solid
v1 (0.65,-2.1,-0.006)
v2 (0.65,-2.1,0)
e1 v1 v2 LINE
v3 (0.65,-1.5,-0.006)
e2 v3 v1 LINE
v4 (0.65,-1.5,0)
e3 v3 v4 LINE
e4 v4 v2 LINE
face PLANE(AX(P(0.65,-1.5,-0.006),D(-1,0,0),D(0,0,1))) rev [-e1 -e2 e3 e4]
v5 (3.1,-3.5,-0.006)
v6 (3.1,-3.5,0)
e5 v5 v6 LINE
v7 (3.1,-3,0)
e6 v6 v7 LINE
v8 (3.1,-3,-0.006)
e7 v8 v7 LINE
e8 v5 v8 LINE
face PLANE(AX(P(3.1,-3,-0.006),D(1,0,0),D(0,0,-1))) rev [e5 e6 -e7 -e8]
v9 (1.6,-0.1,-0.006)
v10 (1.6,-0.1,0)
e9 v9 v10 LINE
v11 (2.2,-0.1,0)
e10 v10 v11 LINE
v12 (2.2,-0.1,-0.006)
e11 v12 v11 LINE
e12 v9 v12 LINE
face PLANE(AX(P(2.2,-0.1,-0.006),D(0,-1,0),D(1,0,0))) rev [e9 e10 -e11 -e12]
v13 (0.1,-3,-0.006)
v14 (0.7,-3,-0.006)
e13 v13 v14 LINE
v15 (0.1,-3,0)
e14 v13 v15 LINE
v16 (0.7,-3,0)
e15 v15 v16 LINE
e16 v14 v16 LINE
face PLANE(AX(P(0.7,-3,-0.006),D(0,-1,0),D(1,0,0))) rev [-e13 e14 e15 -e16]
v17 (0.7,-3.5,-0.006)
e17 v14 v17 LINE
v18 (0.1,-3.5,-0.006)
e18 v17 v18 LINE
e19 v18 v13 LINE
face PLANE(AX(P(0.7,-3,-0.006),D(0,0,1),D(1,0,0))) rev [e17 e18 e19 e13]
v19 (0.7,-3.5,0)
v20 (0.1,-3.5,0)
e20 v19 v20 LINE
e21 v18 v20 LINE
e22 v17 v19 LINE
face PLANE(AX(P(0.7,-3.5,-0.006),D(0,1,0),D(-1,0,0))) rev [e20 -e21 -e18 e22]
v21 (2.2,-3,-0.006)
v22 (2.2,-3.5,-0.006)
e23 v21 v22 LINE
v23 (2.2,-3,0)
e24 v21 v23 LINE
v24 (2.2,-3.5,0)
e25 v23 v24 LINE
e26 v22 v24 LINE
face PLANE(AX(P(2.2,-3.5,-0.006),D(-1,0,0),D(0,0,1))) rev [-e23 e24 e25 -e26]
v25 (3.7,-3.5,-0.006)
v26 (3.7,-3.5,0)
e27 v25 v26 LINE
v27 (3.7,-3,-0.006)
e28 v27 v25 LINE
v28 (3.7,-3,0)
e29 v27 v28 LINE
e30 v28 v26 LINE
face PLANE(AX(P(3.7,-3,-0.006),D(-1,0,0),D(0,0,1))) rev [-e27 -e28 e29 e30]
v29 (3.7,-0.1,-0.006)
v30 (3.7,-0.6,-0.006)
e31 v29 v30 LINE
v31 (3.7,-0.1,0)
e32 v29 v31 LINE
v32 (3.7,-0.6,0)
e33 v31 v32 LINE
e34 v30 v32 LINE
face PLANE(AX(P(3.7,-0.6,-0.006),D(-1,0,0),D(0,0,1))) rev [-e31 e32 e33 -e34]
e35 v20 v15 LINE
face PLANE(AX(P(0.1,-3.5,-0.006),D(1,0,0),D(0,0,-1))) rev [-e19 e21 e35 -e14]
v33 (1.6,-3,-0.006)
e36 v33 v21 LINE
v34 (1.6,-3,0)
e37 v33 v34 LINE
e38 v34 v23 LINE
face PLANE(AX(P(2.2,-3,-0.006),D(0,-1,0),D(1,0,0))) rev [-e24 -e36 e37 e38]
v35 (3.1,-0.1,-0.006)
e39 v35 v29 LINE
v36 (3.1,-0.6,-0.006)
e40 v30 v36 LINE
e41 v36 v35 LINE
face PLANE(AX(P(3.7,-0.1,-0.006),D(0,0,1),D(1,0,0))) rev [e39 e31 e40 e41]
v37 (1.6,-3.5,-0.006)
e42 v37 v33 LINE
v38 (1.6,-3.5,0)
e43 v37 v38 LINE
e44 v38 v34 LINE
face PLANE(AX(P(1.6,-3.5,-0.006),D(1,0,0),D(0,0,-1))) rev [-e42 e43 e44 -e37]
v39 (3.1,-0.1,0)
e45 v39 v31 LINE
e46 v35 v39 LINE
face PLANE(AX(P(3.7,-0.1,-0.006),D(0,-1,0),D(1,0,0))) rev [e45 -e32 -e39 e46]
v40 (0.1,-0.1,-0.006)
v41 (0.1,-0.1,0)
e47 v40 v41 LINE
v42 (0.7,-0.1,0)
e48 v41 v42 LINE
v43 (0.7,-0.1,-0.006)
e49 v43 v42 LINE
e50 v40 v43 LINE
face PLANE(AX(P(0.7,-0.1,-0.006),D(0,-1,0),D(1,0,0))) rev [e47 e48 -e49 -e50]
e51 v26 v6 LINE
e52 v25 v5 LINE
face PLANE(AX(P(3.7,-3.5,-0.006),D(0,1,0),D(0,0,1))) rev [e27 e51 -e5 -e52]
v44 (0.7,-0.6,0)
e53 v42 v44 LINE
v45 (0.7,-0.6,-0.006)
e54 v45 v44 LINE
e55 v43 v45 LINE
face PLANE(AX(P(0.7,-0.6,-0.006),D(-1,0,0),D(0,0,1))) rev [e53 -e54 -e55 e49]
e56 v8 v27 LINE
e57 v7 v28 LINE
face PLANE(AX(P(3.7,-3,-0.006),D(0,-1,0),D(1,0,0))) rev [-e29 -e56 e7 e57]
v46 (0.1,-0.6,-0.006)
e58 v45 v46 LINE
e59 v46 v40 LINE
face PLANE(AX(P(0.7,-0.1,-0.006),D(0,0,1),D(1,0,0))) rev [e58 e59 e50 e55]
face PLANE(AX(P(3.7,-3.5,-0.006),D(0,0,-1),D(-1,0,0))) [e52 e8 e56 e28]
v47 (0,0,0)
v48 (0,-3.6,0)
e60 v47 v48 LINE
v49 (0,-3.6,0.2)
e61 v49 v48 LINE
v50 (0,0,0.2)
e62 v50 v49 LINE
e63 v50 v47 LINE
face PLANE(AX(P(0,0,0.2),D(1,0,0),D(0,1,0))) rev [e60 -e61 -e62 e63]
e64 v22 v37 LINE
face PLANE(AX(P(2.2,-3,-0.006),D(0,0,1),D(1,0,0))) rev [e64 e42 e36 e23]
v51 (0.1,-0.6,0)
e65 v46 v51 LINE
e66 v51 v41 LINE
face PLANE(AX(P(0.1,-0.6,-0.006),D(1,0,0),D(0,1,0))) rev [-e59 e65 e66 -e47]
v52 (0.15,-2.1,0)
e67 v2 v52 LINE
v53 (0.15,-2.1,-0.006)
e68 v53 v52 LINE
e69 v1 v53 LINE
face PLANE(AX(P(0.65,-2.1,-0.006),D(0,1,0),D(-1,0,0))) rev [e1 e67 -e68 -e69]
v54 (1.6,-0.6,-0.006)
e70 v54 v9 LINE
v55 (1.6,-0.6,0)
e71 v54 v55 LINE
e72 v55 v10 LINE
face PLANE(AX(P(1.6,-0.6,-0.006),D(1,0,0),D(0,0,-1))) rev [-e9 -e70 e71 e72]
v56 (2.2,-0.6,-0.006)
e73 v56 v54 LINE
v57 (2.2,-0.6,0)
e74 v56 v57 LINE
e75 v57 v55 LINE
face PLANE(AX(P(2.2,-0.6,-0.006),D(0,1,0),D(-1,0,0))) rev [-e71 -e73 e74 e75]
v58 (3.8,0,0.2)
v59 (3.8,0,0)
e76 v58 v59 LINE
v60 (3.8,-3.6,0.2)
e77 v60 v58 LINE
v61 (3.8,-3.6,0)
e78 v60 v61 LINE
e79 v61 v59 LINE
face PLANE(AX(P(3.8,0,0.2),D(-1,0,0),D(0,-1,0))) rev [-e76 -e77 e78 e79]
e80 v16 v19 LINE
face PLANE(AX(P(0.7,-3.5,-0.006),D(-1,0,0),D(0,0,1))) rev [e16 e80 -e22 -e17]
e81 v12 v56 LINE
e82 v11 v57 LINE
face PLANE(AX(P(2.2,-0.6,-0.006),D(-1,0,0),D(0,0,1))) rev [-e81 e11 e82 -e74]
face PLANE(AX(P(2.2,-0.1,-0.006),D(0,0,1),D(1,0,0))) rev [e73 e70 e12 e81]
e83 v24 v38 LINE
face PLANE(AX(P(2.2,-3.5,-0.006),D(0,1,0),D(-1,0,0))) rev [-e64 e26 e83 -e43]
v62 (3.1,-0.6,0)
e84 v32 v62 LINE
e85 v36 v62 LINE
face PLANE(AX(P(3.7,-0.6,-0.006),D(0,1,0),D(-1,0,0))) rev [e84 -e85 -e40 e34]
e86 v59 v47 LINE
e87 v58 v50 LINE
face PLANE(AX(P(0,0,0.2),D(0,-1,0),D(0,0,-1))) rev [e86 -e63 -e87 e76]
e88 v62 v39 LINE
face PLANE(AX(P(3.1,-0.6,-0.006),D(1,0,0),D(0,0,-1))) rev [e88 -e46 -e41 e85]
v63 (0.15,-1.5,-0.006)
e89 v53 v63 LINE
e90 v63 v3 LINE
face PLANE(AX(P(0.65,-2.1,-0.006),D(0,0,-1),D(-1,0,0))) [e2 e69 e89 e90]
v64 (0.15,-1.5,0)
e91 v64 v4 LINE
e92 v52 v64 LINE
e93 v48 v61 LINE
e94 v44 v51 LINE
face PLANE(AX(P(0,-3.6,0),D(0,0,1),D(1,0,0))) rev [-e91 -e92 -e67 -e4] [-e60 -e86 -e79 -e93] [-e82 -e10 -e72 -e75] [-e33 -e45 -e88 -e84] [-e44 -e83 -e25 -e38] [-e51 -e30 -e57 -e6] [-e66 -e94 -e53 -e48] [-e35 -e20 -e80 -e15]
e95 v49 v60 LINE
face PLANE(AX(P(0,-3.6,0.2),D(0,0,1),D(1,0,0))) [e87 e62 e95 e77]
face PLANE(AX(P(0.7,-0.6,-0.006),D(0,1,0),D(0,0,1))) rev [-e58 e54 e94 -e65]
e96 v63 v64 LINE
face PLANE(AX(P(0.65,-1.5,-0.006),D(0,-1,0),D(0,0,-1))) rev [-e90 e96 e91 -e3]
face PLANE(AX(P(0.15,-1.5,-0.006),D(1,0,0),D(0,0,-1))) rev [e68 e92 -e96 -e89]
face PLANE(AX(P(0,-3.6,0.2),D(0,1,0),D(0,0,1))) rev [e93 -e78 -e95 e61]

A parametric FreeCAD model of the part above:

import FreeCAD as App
import Part
import Sketcher

V = App.Vector

doc = App.newDocument("Part")
body = doc.addObject("PartDesign::Body", "Body")

# Sketch on XY plane
sketch1 = body.newObject("Sketcher::SketchObject", "Sketch")
sketch1.AttachmentSupport = (doc.getObject("XY_Plane"), [""])
sketch1.MapMode = "FlatFace"
sketch1.addGeometry(Part.LineSegment(V(0, 0, 0), V(0, -3.6, 0)), False)
sketch1.addGeometry(Part.LineSegment(V(0, -3.6, 0), V(3.8, -3.6, 0)), False)
sketch1.addGeometry(Part.LineSegment(V(3.8, -3.6, 0), V(3.8, 0, 0)), False)
sketch1.addGeometry(Part.LineSegment(V(3.8, 0, 0), V(0, 0, 0)), False)
sketch1.addConstraint(Sketcher.Constraint("Coincident", 0, 2, 1, 1))
sketch1.addConstraint(Sketcher.Constraint("Coincident", 1, 2, 2, 1))
sketch1.addConstraint(Sketcher.Constraint("Coincident", 2, 2, 3, 1))
sketch1.addConstraint(Sketcher.Constraint("Coincident", 3, 2, 0, 1))
sketch1.addConstraint(Sketcher.Constraint("Vertical", 0))
sketch1.addConstraint(Sketcher.Constraint("Horizontal", 1))
sketch1.addConstraint(Sketcher.Constraint("Vertical", 2))
sketch1.addConstraint(Sketcher.Constraint("Horizontal", 3))
sketch1.addConstraint(Sketcher.Constraint("Coincident", 3, 2, -1, 1))
sketch1.addConstraint(Sketcher.Constraint("DistanceX", 1, 1, 1, 2, 3.8))
sketch1.addConstraint(Sketcher.Constraint("DistanceY", 0, 2, 0, 1, 3.6))
pad1 = body.newObject("PartDesign::Pad", "Pad")
pad1.Profile = sketch1
pad1.Length = 0.2

# Sketch on XY plane
sketch2 = body.newObject("Sketcher::SketchObject", "Sketch001")
sketch2.AttachmentSupport = (doc.getObject("XY_Plane"), [""])
sketch2.MapMode = "FlatFace"
sketch2.addGeometry(Part.LineSegment(V(0.7, -1.5, 0), V(0.7, -2.1, 0)), False)
sketch2.addGeometry(Part.LineSegment(V(0.7, -2.1, 0), V(0.1, -2.1, 0)), False)
sketch2.addGeometry(Part.LineSegment(V(0.1, -2.1, 0), V(0.1, -1.5, 0)), False)
sketch2.addGeometry(Part.LineSegment(V(0.1, -1.5, 0), V(0.7, -1.5, 0)), False)
sketch2.addGeometry(Part.LineSegment(V(2.2, -3, 0), V(2.2, -3.5, 0)), False)
sketch2.addGeometry(Part.LineSegment(V(2.2, -3.5, 0), V(1.6, -3.5, 0)), False)
sketch2.addGeometry(Part.LineSegment(V(1.6, -3.5, 0), V(1.6, -3, 0)), False)
sketch2.addGeometry(Part.LineSegment(V(1.6, -3, 0), V(2.2, -3, 0)), False)
sketch2.addGeometry(Part.LineSegment(V(3.7, -3, 0), V(3.7, -3.5, 0)), False)
sketch2.addGeometry(Part.LineSegment(V(3.7, -3.5, 0), V(3.1, -3.5, 0)), False)
sketch2.addGeometry(Part.LineSegment(V(3.1, -3.5, 0), V(3.1, -3, 0)), False)
sketch2.addGeometry(Part.LineSegment(V(3.1, -3, 0), V(3.7, -3, 0)), False)
sketch2.addGeometry(Part.LineSegment(V(3.7, -0.1, 0), V(3.7, -0.6, 0)), False)
sketch2.addGeometry(Part.LineSegment(V(3.7, -0.6, 0), V(3.1, -0.6, 0)), False)
sketch2.addGeometry(Part.LineSegment(V(3.1, -0.6, 0), V(3.1, -0.1, 0)), False)
sketch2.addGeometry(Part.LineSegment(V(3.1, -0.1, 0), V(3.7, -0.1, 0)), False)
sketch2.addGeometry(Part.LineSegment(V(2.2, -0.1, 0), V(2.2, -0.6, 0)), False)
sketch2.addGeometry(Part.LineSegment(V(2.2, -0.6, 0), V(1.6, -0.6, 0)), False)
sketch2.addGeometry(Part.LineSegment(V(1.6, -0.6, 0), V(1.6, -0.1, 0)), False)
sketch2.addGeometry(Part.LineSegment(V(1.6, -0.1, 0), V(2.2, -0.1, 0)), False)
sketch2.addGeometry(Part.LineSegment(V(0.7, -3, 0), V(0.7, -3.5, 0)), False)
sketch2.addGeometry(Part.LineSegment(V(0.7, -3.5, 0), V(0.1, -3.5, 0)), False)
sketch2.addGeometry(Part.LineSegment(V(0.1, -3.5, 0), V(0.1, -3, 0)), False)
sketch2.addGeometry(Part.LineSegment(V(0.1, -3, 0), V(0.7, -3, 0)), False)
sketch2.addGeometry(Part.LineSegment(V(0.7, -0.1, 0), V(0.7, -0.6, 0)), False)
sketch2.addGeometry(Part.LineSegment(V(0.7, -0.6, 0), V(0.1, -0.6, 0)), False)
sketch2.addGeometry(Part.LineSegment(V(0.1, -0.6, 0), V(0.1, -0.1, 0)), False)
sketch2.addGeometry(Part.LineSegment(V(0.1, -0.1, 0), V(0.7, -0.1, 0)), False)
sketch2.addConstraint(Sketcher.Constraint("Coincident", 0, 2, 1, 1))
sketch2.addConstraint(Sketcher.Constraint("Coincident", 1, 2, 2, 1))
sketch2.addConstraint(Sketcher.Constraint("Coincident", 2, 2, 3, 1))
sketch2.addConstraint(Sketcher.Constraint("Coincident", 3, 2, 0, 1))
sketch2.addConstraint(Sketcher.Constraint("Coincident", 4, 2, 5, 1))
sketch2.addConstraint(Sketcher.Constraint("Coincident", 5, 2, 6, 1))
sketch2.addConstraint(Sketcher.Constraint("Coincident", 6, 2, 7, 1))
sketch2.addConstraint(Sketcher.Constraint("Coincident", 7, 2, 4, 1))
sketch2.addConstraint(Sketcher.Constraint("Coincident", 8, 2, 9, 1))
sketch2.addConstraint(Sketcher.Constraint("Coincident", 9, 2, 10, 1))
sketch2.addConstraint(Sketcher.Constraint("Coincident", 10, 2, 11, 1))
sketch2.addConstraint(Sketcher.Constraint("Coincident", 11, 2, 8, 1))
sketch2.addConstraint(Sketcher.Constraint("Coincident", 12, 2, 13, 1))
sketch2.addConstraint(Sketcher.Constraint("Coincident", 13, 2, 14, 1))
sketch2.addConstraint(Sketcher.Constraint("Coincident", 14, 2, 15, 1))
sketch2.addConstraint(Sketcher.Constraint("Coincident", 15, 2, 12, 1))
sketch2.addConstraint(Sketcher.Constraint("Coincident", 16, 2, 17, 1))
sketch2.addConstraint(Sketcher.Constraint("Coincident", 17, 2, 18, 1))
sketch2.addConstraint(Sketcher.Constraint("Coincident", 18, 2, 19, 1))
sketch2.addConstraint(Sketcher.Constraint("Coincident", 19, 2, 16, 1))
sketch2.addConstraint(Sketcher.Constraint("Coincident", 20, 2, 21, 1))
sketch2.addConstraint(Sketcher.Constraint("Coincident", 21, 2, 22, 1))
sketch2.addConstraint(Sketcher.Constraint("Coincident", 22, 2, 23, 1))
sketch2.addConstraint(Sketcher.Constraint("Coincident", 23, 2, 20, 1))
sketch2.addConstraint(Sketcher.Constraint("Coincident", 24, 2, 25, 1))
sketch2.addConstraint(Sketcher.Constraint("Coincident", 25, 2, 26, 1))
sketch2.addConstraint(Sketcher.Constraint("Coincident", 26, 2, 27, 1))
sketch2.addConstraint(Sketcher.Constraint("Coincident", 27, 2, 24, 1))
sketch2.addConstraint(Sketcher.Constraint("Vertical", 0))
sketch2.addConstraint(Sketcher.Constraint("Horizontal", 1))
sketch2.addConstraint(Sketcher.Constraint("Vertical", 2))
sketch2.addConstraint(Sketcher.Constraint("Horizontal", 3))
sketch2.addConstraint(Sketcher.Constraint("Vertical", 4))
sketch2.addConstraint(Sketcher.Constraint("Horizontal", 5))
sketch2.addConstraint(Sketcher.Constraint("Vertical", 6))
sketch2.addConstraint(Sketcher.Constraint("Horizontal", 7))
sketch2.addConstraint(Sketcher.Constraint("Vertical", 8))
sketch2.addConstraint(Sketcher.Constraint("Horizontal", 9))
sketch2.addConstraint(Sketcher.Constraint("Vertical", 10))
sketch2.addConstraint(Sketcher.Constraint("Horizontal", 11))
sketch2.addConstraint(Sketcher.Constraint("Vertical", 12))
sketch2.addConstraint(Sketcher.Constraint("Horizontal", 13))
sketch2.addConstraint(Sketcher.Constraint("Vertical", 14))
sketch2.addConstraint(Sketcher.Constraint("Horizontal", 15))
sketch2.addConstraint(Sketcher.Constraint("Vertical", 16))
sketch2.addConstraint(Sketcher.Constraint("Horizontal", 17))
sketch2.addConstraint(Sketcher.Constraint("Vertical", 18))
sketch2.addConstraint(Sketcher.Constraint("Horizontal", 19))
sketch2.addConstraint(Sketcher.Constraint("Vertical", 20))
sketch2.addConstraint(Sketcher.Constraint("Horizontal", 21))
sketch2.addConstraint(Sketcher.Constraint("Vertical", 22))
sketch2.addConstraint(Sketcher.Constraint("Horizontal", 23))
sketch2.addConstraint(Sketcher.Constraint("Vertical", 24))
sketch2.addConstraint(Sketcher.Constraint("Horizontal", 25))
sketch2.addConstraint(Sketcher.Constraint("Vertical", 26))
sketch2.addConstraint(Sketcher.Constraint("Horizontal", 27))
sketch2.addConstraint(Sketcher.Constraint("Horizontal", 5, 2, 8, 2))
sketch2.addConstraint(Sketcher.Constraint("Horizontal", 7, 2, 10, 2))
sketch2.addConstraint(Sketcher.Constraint("Horizontal", 13, 2, 16, 2))
sketch2.addConstraint(Sketcher.Constraint("Horizontal", 15, 2, 18, 2))
sketch2.addConstraint(Sketcher.Constraint("Horizontal", 9, 2, 20, 2))
sketch2.addConstraint(Sketcher.Constraint("Horizontal", 11, 2, 22, 2))
sketch2.addConstraint(Sketcher.Constraint("Horizontal", 17, 2, 24, 2))
sketch2.addConstraint(Sketcher.Constraint("Horizontal", 19, 2, 26, 2))
sketch2.addConstraint(Sketcher.Constraint("Vertical", 11, 2, 12, 2))
sketch2.addConstraint(Sketcher.Constraint("Vertical", 10, 2, 13, 2))
sketch2.addConstraint(Sketcher.Constraint("Vertical", 7, 2, 16, 2))
sketch2.addConstraint(Sketcher.Constraint("Vertical", 6, 2, 17, 2))
sketch2.addConstraint(Sketcher.Constraint("Vertical", 23, 2, 24, 2))
sketch2.addConstraint(Sketcher.Constraint("Vertical", 22, 2, 25, 2))
sketch2.addConstraint(Sketcher.Constraint("Equal", 7, 9))
sketch2.addConstraint(Sketcher.Constraint("Equal", 19, 21))
sketch2.addConstraint(Sketcher.Constraint("Equal", 27, 0))
sketch2.addConstraint(Sketcher.Constraint("Equal", 3, 4))
sketch2.addConstraint(Sketcher.Constraint("Equal", 10, 12))
sketch2.addConstraint(Sketcher.Constraint("DistanceX", 1, 2, 1, 1, 0.5))
sketch2.addConstraint(Sketcher.Constraint("DistanceX", 5, 2, 5, 1, 0.6))
sketch2.addConstraint(Sketcher.Constraint("DistanceY", 6, 2, -1, 1, 3.0))
sketch2.addConstraint(Sketcher.Constraint("DistanceY", 4, 2, 3, 2, 2.0))
sketch2.addConstraint(Sketcher.Constraint("DistanceX", -1, 1, 4, 2, 2.2))
sketch2.addConstraint(Sketcher.Constraint("DistanceX", -1, 1, 8, 2, 3.7))
sketch2.addConstraint(Sketcher.Constraint("DistanceY", 12, 2, -1, 1, 0.6))
sketch2.addConstraint(Sketcher.Constraint("DistanceX", -1, 1, 20, 2, 0.7))
sketch2.addConstraint(Sketcher.Constraint("DistanceX", -1, 1, 0, 2, 0.65))
pad2 = body.newObject("PartDesign::Pad", "Pad001")
pad2.Profile = sketch2
pad2.Length = 0.006
pad2.Reversed = True

doc.recompute()
